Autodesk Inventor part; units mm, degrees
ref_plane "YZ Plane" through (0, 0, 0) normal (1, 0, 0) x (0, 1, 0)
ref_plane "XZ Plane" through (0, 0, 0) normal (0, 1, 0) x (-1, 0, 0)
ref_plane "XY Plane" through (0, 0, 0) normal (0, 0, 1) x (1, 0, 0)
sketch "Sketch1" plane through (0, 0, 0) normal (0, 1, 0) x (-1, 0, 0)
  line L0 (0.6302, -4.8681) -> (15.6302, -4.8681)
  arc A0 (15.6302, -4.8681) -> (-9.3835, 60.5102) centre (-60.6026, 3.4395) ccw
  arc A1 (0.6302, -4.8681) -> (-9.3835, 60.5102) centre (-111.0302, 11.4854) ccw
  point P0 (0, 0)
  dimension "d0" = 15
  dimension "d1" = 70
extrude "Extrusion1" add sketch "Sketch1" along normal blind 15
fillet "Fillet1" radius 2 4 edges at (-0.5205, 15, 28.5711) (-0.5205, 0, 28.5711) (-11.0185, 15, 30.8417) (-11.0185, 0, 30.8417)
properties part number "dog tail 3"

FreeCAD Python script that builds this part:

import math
import FreeCAD as App
import Part
import Sketcher
from FreeCAD import Vector
Q = App.Units.Quantity


def edges_at(feature, points):
    """Names of the edges that pass closest to the given points."""
    edges = feature.Shape.Edges
    near = lambda p: min(range(len(edges)), key=lambda i: edges[i].distToShape(Part.Vertex(*p))[0])
    return sorted({f"Edge{near(p) + 1}" for p in points})

doc = App.newDocument("Part")
body = doc.addObject("PartDesign::Body", "Body")

# Sketch on XZ plane
sketch1 = body.newObject("Sketcher::SketchObject", "Sketch")
sketch1.AttachmentSupport = (doc.getObject("XZ_Plane"), [""])
sketch1.MapMode = "FlatFace"
sketch1.addGeometry([
    Part.ArcOfCircle(Part.Circle(Vector(111, 11, 0), Vector(0, 0, 1), 113), math.radians(154), math.radians(188)),
    Part.LineSegment(Vector(-1, -5, 0), Vector(-16, -5, 0)),
    Part.ArcOfCircle(Part.Circle(Vector(61, 3, 0), Vector(0, 0, 1), 77), math.radians(132), math.radians(186)),
], False)
sketch1.addConstraint([
    Sketcher.Constraint("Coincident", 0, 2, 1, 1),
    Sketcher.Constraint("Coincident", 1, 2, 2, 2),
    Sketcher.Constraint("Coincident", 2, 1, 0, 1),
    Sketcher.Constraint("Horizontal", 1),
    Sketcher.Constraint("DistanceX", 1, 2, 1, 1, Q("15 mm")),
    Sketcher.Constraint("Radius", 0, Q("112.8516 mm")),
    Sketcher.Constraint("Radius", 2, Q("76.6841 mm")),
    Sketcher.Constraint("DistanceY", 0, 2, -1, 1, Q("4.868 mm")),
    Sketcher.Constraint("DistanceY", 2, 3, 0, 3, Q("8.046 mm")),
    Sketcher.Constraint("DistanceX", -1, 1, 0, 3, Q("111.0302 mm")),
    Sketcher.Constraint("DistanceY", -1, 1, 0, 3, Q("11.4854 mm")),
])
pad1 = body.newObject("PartDesign::Pad", "Pad")
pad1.Profile = sketch1
pad1.Length = 15
pad1.Reversed = True
doc.recompute()

fillet = body.newObject("PartDesign::Fillet", "Fillet")
fillet.Base = (pad1, edges_at(pad1, [
    (-0.52, 15, 28.571),
    (-0.52, 0, 28.571),
    (-11.018, 15, 30.842),
    (-11.018, 0, 30.842),
]))
fillet.Radius = 2

doc.recompute()
